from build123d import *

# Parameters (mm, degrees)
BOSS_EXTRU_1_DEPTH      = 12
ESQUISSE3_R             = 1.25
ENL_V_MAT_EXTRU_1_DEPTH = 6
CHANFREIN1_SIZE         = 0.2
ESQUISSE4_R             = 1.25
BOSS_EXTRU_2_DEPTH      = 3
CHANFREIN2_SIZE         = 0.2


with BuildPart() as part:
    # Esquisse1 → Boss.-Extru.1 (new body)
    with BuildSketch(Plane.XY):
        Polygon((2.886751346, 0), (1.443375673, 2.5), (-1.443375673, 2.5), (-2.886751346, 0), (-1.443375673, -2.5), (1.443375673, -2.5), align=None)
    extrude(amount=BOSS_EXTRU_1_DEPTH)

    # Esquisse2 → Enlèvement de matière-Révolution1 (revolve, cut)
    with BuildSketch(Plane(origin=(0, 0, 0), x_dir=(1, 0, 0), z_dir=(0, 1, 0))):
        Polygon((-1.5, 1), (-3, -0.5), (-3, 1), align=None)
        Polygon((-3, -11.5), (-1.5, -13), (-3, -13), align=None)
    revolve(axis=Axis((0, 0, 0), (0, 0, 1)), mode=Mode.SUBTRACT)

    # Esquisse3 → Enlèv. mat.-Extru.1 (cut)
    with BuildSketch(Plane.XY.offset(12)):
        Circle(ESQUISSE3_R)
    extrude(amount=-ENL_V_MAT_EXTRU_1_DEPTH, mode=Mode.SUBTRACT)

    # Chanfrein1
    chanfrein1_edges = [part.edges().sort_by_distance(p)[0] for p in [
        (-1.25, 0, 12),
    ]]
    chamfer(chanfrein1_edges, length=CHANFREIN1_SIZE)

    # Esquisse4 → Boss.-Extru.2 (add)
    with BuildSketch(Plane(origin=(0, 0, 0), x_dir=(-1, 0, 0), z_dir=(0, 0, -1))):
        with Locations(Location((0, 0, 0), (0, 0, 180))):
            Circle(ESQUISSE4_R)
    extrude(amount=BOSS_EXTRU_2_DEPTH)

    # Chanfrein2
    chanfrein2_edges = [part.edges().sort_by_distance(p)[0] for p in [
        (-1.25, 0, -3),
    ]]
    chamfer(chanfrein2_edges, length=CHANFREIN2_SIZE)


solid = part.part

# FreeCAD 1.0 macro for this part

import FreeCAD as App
import Part
import Sketcher
Q = App.Units.Quantity


def edges_at(feature, points):
    """Names of the edges that pass closest to the given points."""
    edges = feature.Shape.Edges
    near = lambda p: min(range(len(edges)), key=lambda i: edges[i].distToShape(Part.Vertex(*p))[0])
    return sorted({f"Edge{near(p) + 1}" for p in points})

doc = App.newDocument("Part")
body = doc.addObject("PartDesign::Body", "Body")

# Sketch on XY plane
sketch1 = body.newObject("Sketcher::SketchObject", "Sketch")
sketch1.AttachmentSupport = (doc.getObject("XY_Plane"), [""])
sketch1.MapMode = "FlatFace"
sketch1.addGeometry(Part.LineSegment(App.Vector(2.9, 0, 0), App.Vector(1.4, 2.5, 0)), False)
sketch1.addGeometry(Part.LineSegment(App.Vector(1.4, 2.5, 0), App.Vector(-1.4, 2.5, 0)), False)
sketch1.addGeometry(Part.LineSegment(App.Vector(-1.4, 2.5, 0), App.Vector(-2.9, 0, 0)), False)
sketch1.addGeometry(Part.LineSegment(App.Vector(-2.9, 0, 0), App.Vector(-1.4, -2.5, 0)), False)
sketch1.addGeometry(Part.LineSegment(App.Vector(-1.4, -2.5, 0), App.Vector(1.4, -2.5, 0)), False)
sketch1.addGeometry(Part.LineSegment(App.Vector(1.4, -2.5, 0), App.Vector(2.9, 0, 0)), False)
sketch1.addConstraint(Sketcher.Constraint("Coincident", 0, 2, 1, 1))
sketch1.addConstraint(Sketcher.Constraint("Coincident", 1, 2, 2, 1))
sketch1.addConstraint(Sketcher.Constraint("Coincident", 2, 2, 3, 1))
sketch1.addConstraint(Sketcher.Constraint("Coincident", 3, 2, 4, 1))
sketch1.addConstraint(Sketcher.Constraint("Coincident", 4, 2, 5, 1))
sketch1.addConstraint(Sketcher.Constraint("Coincident", 5, 2, 0, 1))
sketch1.addConstraint(Sketcher.Constraint("Horizontal", 1))
sketch1.addConstraint(Sketcher.Constraint("Horizontal", 4))
sketch1.addConstraint(Sketcher.Constraint("Symmetric", 0, 2, 3, 2, -1, 1))
sketch1.addConstraint(Sketcher.Constraint("Symmetric", 2, 2, 5, 2, -1, 1))
sketch1.addConstraint(Sketcher.Constraint("PointOnObject", 2, 2, -1))
sketch1.addConstraint(Sketcher.Constraint("Parallel", 2, 5))
sketch1.addConstraint(Sketcher.Constraint("Vertical", 1, 2, 3, 2))
sketch1.addConstraint(Sketcher.Constraint("Angle", 0, Q("120 deg")))
sketch1.addConstraint(Sketcher.Constraint("DistanceY", 3, 2, 1, 2, 5.0))
sketch1.addConstraint(Sketcher.Constraint("DistanceX", 1, 2, 1, 1, 2.886751))
pad1 = body.newObject("PartDesign::Pad", "Pad")
pad1.Profile = sketch1
pad1.Length = 12

# Sketch on XZ plane
sketch2 = body.newObject("Sketcher::SketchObject", "Sketch001")
sketch2.AttachmentSupport = (doc.getObject("XZ_Plane"), [""])
sketch2.MapMode = "FlatFace"
sketch2.addGeometry(Part.LineSegment(App.Vector(-3, 0.5, 0), App.Vector(-1.5, -1, 0)), False)
sketch2.addGeometry(Part.LineSegment(App.Vector(-1.5, -1, 0), App.Vector(-3, -1, 0)), False)
sketch2.addGeometry(Part.LineSegment(App.Vector(-3, -1, 0), App.Vector(-3, 0.5, 0)), False)
sketch2.addGeometry(Part.LineSegment(App.Vector(-1.5, 13, 0), App.Vector(-3, 11.5, 0)), False)
sketch2.addGeometry(Part.LineSegment(App.Vector(-3, 11.5, 0), App.Vector(-3, 13, 0)), False)
sketch2.addGeometry(Part.LineSegment(App.Vector(-3, 13, 0), App.Vector(-1.5, 13, 0)), False)
sketch2.addConstraint(Sketcher.Constraint("Coincident", 0, 2, 1, 1))
sketch2.addConstraint(Sketcher.Constraint("Coincident", 1, 2, 2, 1))
sketch2.addConstraint(Sketcher.Constraint("Coincident", 2, 2, 0, 1))
sketch2.addConstraint(Sketcher.Constraint("Coincident", 3, 2, 4, 1))
sketch2.addConstraint(Sketcher.Constraint("Coincident", 4, 2, 5, 1))
sketch2.addConstraint(Sketcher.Constraint("Coincident", 5, 2, 3, 1))
sketch2.addConstraint(Sketcher.Constraint("Horizontal", 1))
sketch2.addConstraint(Sketcher.Constraint("Vertical", 2))
sketch2.addConstraint(Sketcher.Constraint("Vertical", 4))
sketch2.addConstraint(Sketcher.Constraint("Horizontal", 5))
sketch2.addConstraint(Sketcher.Constraint("Perpendicular", 0, 3))
sketch2.addConstraint(Sketcher.Constraint("Vertical", 2, 2, 3, 2))
sketch2.addConstraint(Sketcher.Constraint("Vertical", 0, 2, 5, 2))
sketch2.addConstraint(Sketcher.Constraint("Equal", 5, 2))
sketch2.addConstraint(Sketcher.Constraint("DistanceX", 1, 2, 1, 1, 1.5))
sketch2.addConstraint(Sketcher.Constraint("DistanceY", 0, 2, -1, 1, 1.0))
sketch2.addConstraint(Sketcher.Constraint("DistanceX", 1, 2, -1, 1, 3.0))
sketch2.addConstraint(Sketcher.Constraint("DistanceY", -1, 1, 4, 2, 13.0))
groove = body.newObject("PartDesign::Groove", "Groove")
groove.Profile = sketch2
groove.ReferenceAxis = (sketch2, ["V_Axis"])
groove.Angle = 360

# Sketch on XY plane
sketch3 = body.newObject("Sketcher::SketchObject", "Sketch002")
sketch3.AttachmentSupport = (doc.getObject("XY_Plane"), [""])
sketch3.MapMode = "FlatFace"
sketch3.AttachmentOffset = App.Placement(App.Vector(0, 0, 12), App.Rotation())
sketch3.addGeometry(Part.Circle(App.Vector(0, 0, 0), App.Vector(0, 0, 1), 1.2), False)
sketch3.addConstraint(Sketcher.Constraint("Coincident", 0, 3, -1, 1))
sketch3.addConstraint(Sketcher.Constraint("Diameter", 0, 2.5))
pocket1 = body.newObject("PartDesign::Pocket", "Pocket")
pocket1.Profile = sketch3
pocket1.Length = 6
doc.recompute()

chamfer = body.newObject("PartDesign::Chamfer", "Chamfer")
chamfer.Base = (pocket1, edges_at(pocket1, [(-1.25, 0, 12)]))
chamfer.Size = 0.2

# Sketch on XY plane
sketch4 = body.newObject("Sketcher::SketchObject", "Sketch003")
sketch4.AttachmentSupport = (doc.getObject("XY_Plane"), [""])
sketch4.MapMode = "FlatFace"
sketch4.addGeometry(Part.Circle(App.Vector(0, 0, 0), App.Vector(0, 0, 1), 1.2), False)
sketch4.addConstraint(Sketcher.Constraint("Coincident", 0, 3, -1, 1))
sketch4.addConstraint(Sketcher.Constraint("Diameter", 0, 2.5))
pad2 = body.newObject("PartDesign::Pad", "Pad001")
pad2.Profile = sketch4
pad2.Length = 3
pad2.Reversed = True
doc.recompute()

chamfer2 = body.newObject("PartDesign::Chamfer", "Chamfer001")
chamfer2.Base = (pad2, edges_at(pad2, [(-1.25, 0, -3)]))
chamfer2.Size = 0.2

doc.recompute()
